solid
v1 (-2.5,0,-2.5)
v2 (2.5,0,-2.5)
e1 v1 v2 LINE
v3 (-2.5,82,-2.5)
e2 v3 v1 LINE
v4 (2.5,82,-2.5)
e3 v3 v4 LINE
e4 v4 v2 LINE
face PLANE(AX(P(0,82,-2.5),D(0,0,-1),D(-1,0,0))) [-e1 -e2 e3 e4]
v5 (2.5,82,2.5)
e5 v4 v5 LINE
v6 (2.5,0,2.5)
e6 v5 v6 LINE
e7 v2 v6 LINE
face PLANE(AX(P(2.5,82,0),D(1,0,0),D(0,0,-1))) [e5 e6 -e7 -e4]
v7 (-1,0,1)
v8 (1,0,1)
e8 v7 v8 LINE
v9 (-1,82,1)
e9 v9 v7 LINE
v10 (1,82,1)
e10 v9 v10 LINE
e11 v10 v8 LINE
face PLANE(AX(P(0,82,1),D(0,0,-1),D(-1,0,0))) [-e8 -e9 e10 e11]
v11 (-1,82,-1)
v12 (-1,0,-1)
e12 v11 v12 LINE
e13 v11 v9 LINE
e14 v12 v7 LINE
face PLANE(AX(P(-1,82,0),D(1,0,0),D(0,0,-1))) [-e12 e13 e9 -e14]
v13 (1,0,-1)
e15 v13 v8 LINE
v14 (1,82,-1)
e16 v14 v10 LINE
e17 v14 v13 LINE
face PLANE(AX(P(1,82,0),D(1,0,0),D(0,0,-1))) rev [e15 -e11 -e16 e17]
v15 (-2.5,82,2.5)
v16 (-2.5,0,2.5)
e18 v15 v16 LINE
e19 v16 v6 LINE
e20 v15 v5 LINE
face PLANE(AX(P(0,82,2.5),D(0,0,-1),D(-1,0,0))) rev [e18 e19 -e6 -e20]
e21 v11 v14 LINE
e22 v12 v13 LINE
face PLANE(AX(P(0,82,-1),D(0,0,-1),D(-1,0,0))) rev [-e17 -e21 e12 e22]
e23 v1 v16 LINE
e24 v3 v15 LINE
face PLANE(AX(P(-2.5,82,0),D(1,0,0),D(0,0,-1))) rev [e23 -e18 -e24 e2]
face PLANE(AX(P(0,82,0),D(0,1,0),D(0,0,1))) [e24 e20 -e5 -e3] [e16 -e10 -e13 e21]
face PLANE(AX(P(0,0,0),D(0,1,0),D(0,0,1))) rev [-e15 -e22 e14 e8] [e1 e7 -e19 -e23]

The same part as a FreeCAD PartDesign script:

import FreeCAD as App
import Part
import Sketcher

V = App.Vector
Q = App.Units.Quantity


def add_polygon(sketch, points):
    """Adds a closed chain of lines whose ends are joined by coincident constraints."""
    first, n = sketch.GeometryCount, len(points)
    for a, b in zip(points, points[1:] + points[:1]):
        sketch.addGeometry(Part.LineSegment(App.Vector(*a, 0), App.Vector(*b, 0)), False)
    for i in range(n):
        sketch.addConstraint(Sketcher.Constraint("Coincident", first + i, 2, first + (i + 1) % n, 1))

doc = App.newDocument("Part")
body = doc.addObject("PartDesign::Body", "Body")

sketch1 = body.newObject("Sketcher::SketchObject", "Sketch")
sketch1.AttachmentSupport = (doc.getObject("XZ_Plane"), [""])
sketch1.MapMode = "FlatFace"
add_polygon(sketch1, [(-2.5, -2.5), (-2.5, 2.5), (2.5, 2.5), (2.5, -2.5)])
add_polygon(sketch1, [(1, 1), (-1, 1), (-1, -1), (1, -1)])
sketch1.addConstraint(Sketcher.Constraint("Vertical", 0))
sketch1.addConstraint(Sketcher.Constraint("Horizontal", 1))
sketch1.addConstraint(Sketcher.Constraint("Vertical", 2))
sketch1.addConstraint(Sketcher.Constraint("Horizontal", 3))
sketch1.addConstraint(Sketcher.Constraint("Horizontal", 4))
sketch1.addConstraint(Sketcher.Constraint("Vertical", 5))
sketch1.addConstraint(Sketcher.Constraint("Horizontal", 6))
sketch1.addConstraint(Sketcher.Constraint("Vertical", 7))
sketch1.addConstraint(Sketcher.Constraint("Symmetric", 0, 2, 2, 2, -1, 1))
sketch1.addConstraint(Sketcher.Constraint("Symmetric", 4, 2, 6, 2, -1, 1))
sketch1.addConstraint(Sketcher.Constraint("Equal", 3, 0))
sketch1.addConstraint(Sketcher.Constraint("Equal", 6, 5))
sketch1.addConstraint(Sketcher.Constraint("DistanceX", 1, 1, 1, 2, Q("5 mm")))
sketch1.addConstraint(Sketcher.Constraint("DistanceX", 4, 2, 4, 1, Q("2 mm")))
pad1 = body.newObject("PartDesign::Pad", "Pad")
pad1.Profile = sketch1
pad1.Length = 82
pad1.Reversed = True

doc.recompute()
